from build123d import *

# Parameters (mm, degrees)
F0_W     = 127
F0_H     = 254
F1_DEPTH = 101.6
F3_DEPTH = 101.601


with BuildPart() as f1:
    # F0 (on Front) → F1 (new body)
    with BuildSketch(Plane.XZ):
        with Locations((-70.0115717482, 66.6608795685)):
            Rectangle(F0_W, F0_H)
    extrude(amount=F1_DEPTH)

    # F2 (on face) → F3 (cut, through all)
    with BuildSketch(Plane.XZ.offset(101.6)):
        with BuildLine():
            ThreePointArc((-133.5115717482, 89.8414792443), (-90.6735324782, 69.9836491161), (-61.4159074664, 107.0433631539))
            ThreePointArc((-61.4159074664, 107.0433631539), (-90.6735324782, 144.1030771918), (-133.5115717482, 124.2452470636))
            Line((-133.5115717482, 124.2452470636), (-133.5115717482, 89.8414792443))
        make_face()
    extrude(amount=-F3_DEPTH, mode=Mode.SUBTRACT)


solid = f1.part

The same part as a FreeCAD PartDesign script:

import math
import FreeCAD as App
import Part
import Sketcher
Q = App.Units.Quantity

doc = App.newDocument("Part")
body = doc.addObject("PartDesign::Body", "Body")

# Sketch on XZ plane
sketch1 = body.newObject("Sketcher::SketchObject", "Sketch")
sketch1.AttachmentSupport = (doc.getObject("XZ_Plane"), [""])
sketch1.MapMode = "FlatFace"
sketch1.addGeometry(Part.LineSegment(App.Vector(-134, 194, 0), App.Vector(-134, -60, 0)), False)
sketch1.addGeometry(Part.LineSegment(App.Vector(-134, -60, 0), App.Vector(-7, -60, 0)), False)
sketch1.addGeometry(Part.LineSegment(App.Vector(-7, -60, 0), App.Vector(-7, 194, 0)), False)
sketch1.addGeometry(Part.LineSegment(App.Vector(-7, 194, 0), App.Vector(-134, 194, 0)), False)
sketch1.addConstraint(Sketcher.Constraint("Coincident", 0, 2, 1, 1))
sketch1.addConstraint(Sketcher.Constraint("Coincident", 1, 2, 2, 1))
sketch1.addConstraint(Sketcher.Constraint("Coincident", 2, 2, 3, 1))
sketch1.addConstraint(Sketcher.Constraint("Coincident", 3, 2, 0, 1))
sketch1.addConstraint(Sketcher.Constraint("Vertical", 0))
sketch1.addConstraint(Sketcher.Constraint("Horizontal", 1))
sketch1.addConstraint(Sketcher.Constraint("Vertical", 2))
sketch1.addConstraint(Sketcher.Constraint("Horizontal", 3))
sketch1.addConstraint(Sketcher.Constraint("DistanceX", 1, 1, 1, 2, Q("5 in")))
sketch1.addConstraint(Sketcher.Constraint("DistanceY", 0, 2, 0, 1, Q("10 in")))
sketch1.addConstraint(Sketcher.Constraint("DistanceX", 0, 2, -1, 1, Q("133.511572 mm")))
sketch1.addConstraint(Sketcher.Constraint("DistanceY", 0, 2, -1, 1, Q("60.33912 mm")))
pad1 = body.newObject("PartDesign::Pad", "Pad")
pad1.Profile = sketch1
pad1.Length = Q("4 in")

# Sketch on XZ plane
sketch2 = body.newObject("Sketcher::SketchObject", "Sketch001")
sketch2.AttachmentSupport = (doc.getObject("XZ_Plane"), [""])
sketch2.MapMode = "FlatFace"
sketch2.AttachmentOffset = App.Placement(App.Vector(0, 0, 4 * 25.4), App.Rotation())
sketch2.addGeometry(Part.ArcOfCircle(Part.Circle(App.Vector(-100, 107, 0), App.Vector(0, 0, 1), 38), math.radians(-153), math.radians(0)), False)
sketch2.addGeometry(Part.ArcOfCircle(Part.Circle(App.Vector(-100, 107, 0), App.Vector(0, 0, 1), 38), math.radians(0), math.radians(153)), False)
sketch2.addGeometry(Part.LineSegment(App.Vector(-134, 124, 0), App.Vector(-134, 90, 0)), False)
sketch2.addConstraint(Sketcher.Constraint("Tangent", 0, 2, 1, 1))
sketch2.addConstraint(Sketcher.Constraint("Coincident", 1, 2, 2, 1))
sketch2.addConstraint(Sketcher.Constraint("Coincident", 2, 2, 0, 1))
sketch2.addConstraint(Sketcher.Constraint("Vertical", 2))
sketch2.addConstraint(Sketcher.Constraint("Equal", 0, 1))
sketch2.addConstraint(Sketcher.Constraint("Horizontal", 1, 3, 0, 2))
sketch2.addConstraint(Sketcher.Constraint("Radius", 0, Q("1.5 in")))
sketch2.addConstraint(Sketcher.Constraint("DistanceY", 2, 2, 2, 1, Q("34.403768 mm")))
sketch2.addConstraint(Sketcher.Constraint("DistanceX", 1, 2, -1, 1, Q("133.511572 mm")))
sketch2.addConstraint(Sketcher.Constraint("DistanceY", -1, 1, 2, 2, Q("89.841479 mm")))
pocket1 = body.newObject("PartDesign::Pocket", "Pocket")
pocket1.Profile = sketch2
pocket1.Type = "ThroughAll"

doc.recompute()
